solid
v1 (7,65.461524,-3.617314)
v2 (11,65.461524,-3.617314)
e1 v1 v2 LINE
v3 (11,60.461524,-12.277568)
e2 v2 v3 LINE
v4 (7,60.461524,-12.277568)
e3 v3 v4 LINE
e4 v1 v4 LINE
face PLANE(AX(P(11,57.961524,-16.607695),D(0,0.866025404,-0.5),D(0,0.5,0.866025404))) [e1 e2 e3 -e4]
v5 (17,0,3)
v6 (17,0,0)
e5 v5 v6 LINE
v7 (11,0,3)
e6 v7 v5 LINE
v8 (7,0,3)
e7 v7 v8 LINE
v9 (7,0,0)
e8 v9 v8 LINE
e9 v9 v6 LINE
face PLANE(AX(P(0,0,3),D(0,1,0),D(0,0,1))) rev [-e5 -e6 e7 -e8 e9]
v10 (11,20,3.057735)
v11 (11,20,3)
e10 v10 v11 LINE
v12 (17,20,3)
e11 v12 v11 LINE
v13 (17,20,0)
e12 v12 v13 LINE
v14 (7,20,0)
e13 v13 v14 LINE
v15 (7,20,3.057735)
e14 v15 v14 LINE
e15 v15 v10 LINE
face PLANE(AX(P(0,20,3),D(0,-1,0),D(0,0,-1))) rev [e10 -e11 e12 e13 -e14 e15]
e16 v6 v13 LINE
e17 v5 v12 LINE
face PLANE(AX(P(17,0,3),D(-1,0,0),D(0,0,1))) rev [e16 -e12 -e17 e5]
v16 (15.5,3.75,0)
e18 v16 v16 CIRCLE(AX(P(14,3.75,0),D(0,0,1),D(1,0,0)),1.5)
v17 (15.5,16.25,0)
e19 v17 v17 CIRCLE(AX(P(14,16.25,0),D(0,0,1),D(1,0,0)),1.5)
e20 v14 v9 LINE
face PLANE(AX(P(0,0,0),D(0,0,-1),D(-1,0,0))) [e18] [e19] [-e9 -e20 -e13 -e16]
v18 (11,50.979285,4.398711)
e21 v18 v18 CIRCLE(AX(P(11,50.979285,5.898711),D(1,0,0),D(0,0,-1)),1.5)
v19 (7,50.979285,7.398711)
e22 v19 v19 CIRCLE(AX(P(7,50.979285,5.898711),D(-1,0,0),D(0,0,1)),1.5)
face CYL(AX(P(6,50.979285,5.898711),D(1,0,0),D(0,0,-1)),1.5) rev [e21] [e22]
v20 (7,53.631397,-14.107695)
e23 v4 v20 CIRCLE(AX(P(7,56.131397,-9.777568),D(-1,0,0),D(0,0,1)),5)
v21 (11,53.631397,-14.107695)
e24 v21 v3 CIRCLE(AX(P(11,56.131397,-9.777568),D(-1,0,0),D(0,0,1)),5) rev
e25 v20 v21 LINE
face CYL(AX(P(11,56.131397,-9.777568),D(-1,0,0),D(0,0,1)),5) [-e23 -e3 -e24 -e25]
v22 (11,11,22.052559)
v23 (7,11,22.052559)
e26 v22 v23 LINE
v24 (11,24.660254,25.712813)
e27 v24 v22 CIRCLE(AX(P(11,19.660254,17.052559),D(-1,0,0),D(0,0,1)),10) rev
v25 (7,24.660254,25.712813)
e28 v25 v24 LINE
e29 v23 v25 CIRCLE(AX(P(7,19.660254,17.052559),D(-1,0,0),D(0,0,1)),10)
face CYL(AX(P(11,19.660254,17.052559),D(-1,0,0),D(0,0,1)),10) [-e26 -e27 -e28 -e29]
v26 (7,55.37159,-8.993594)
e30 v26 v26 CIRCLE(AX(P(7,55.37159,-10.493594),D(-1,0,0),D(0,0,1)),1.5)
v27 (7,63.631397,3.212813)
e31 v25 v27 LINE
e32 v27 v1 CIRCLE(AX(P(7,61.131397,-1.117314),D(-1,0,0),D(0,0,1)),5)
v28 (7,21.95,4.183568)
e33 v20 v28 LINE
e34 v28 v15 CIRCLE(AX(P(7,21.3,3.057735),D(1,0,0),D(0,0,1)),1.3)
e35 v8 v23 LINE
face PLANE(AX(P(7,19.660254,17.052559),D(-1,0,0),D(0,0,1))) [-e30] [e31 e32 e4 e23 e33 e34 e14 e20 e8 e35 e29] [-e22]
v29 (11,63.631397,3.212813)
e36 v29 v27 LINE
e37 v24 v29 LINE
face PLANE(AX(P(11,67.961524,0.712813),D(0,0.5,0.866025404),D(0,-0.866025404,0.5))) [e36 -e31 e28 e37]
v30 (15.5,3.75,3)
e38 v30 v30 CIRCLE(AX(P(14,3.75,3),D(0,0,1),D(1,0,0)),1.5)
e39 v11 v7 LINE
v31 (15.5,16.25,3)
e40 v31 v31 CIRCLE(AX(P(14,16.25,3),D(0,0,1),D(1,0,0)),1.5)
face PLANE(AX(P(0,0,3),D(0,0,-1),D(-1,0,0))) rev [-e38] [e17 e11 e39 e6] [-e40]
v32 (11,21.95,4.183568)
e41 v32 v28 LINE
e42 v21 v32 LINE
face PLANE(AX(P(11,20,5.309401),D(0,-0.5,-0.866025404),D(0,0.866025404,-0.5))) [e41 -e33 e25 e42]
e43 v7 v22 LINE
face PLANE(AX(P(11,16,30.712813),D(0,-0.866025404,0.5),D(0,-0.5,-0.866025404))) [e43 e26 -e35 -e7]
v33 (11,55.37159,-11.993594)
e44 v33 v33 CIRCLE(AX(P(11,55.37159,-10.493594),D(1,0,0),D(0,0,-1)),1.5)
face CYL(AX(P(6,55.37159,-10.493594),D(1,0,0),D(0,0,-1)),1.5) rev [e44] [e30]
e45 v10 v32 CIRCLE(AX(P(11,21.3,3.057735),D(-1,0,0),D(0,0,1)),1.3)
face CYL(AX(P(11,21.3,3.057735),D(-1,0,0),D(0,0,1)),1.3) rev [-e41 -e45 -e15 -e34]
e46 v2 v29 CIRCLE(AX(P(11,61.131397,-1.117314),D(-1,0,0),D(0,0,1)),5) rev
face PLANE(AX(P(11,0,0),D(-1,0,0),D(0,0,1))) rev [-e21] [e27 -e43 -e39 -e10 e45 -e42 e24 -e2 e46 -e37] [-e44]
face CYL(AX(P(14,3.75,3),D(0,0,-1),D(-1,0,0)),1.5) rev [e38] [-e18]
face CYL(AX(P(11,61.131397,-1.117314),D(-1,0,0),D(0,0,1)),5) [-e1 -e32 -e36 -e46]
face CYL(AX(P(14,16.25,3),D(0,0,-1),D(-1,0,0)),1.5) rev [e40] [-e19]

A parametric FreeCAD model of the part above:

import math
import FreeCAD as App
import Part
import Sketcher
Q = App.Units.Quantity


def edges_at(feature, points):
    """Names of the edges that pass closest to the given points."""
    edges = feature.Shape.Edges
    near = lambda p: min(range(len(edges)), key=lambda i: edges[i].distToShape(Part.Vertex(*p))[0])
    return sorted({f"Edge{near(p) + 1}" for p in points})

doc = App.newDocument("Part")
body = doc.addObject("PartDesign::Body", "Body")

# Sketch on XY plane
sketch1 = doc.addObject("Sketcher::SketchObject", "Sketch")
body.addObject(sketch1)
sketch1.AttachmentSupport = (doc.XY_Plane, [""])
sketch1.MapMode = "FlatFace"
sketch1.addGeometry(Part.LineSegment(App.Vector(0, 20, 0), App.Vector(0, 0, 0)), False)
sketch1.addGeometry(Part.LineSegment(App.Vector(0, 0, 0), App.Vector(17, 0, 0)), False)
sketch1.addGeometry(Part.LineSegment(App.Vector(17, 0, 0), App.Vector(17, 20, 0)), False)
sketch1.addGeometry(Part.LineSegment(App.Vector(17, 20, 0), App.Vector(0, 20, 0)), False)
sketch1.addGeometry(Part.Circle(App.Vector(3, 3.8, 0), App.Vector(0, 0, 1), 1.5), False)
sketch1.addGeometry(Part.Circle(App.Vector(14, 3.8, 0), App.Vector(0, 0, 1), 1.5), False)
sketch1.addGeometry(Part.Circle(App.Vector(3, 16.2, 0), App.Vector(0, 0, 1), 1.5), False)
sketch1.addGeometry(Part.Circle(App.Vector(14, 16.2, 0), App.Vector(0, 0, 1), 1.5), False)
sketch1.addConstraint(Sketcher.Constraint("Coincident", 0, 2, 1, 1))
sketch1.addConstraint(Sketcher.Constraint("Coincident", 1, 2, 2, 1))
sketch1.addConstraint(Sketcher.Constraint("Coincident", 2, 2, 3, 1))
sketch1.addConstraint(Sketcher.Constraint("Coincident", 3, 2, 0, 1))
sketch1.addConstraint(Sketcher.Constraint("Vertical", 0))
sketch1.addConstraint(Sketcher.Constraint("Horizontal", 1))
sketch1.addConstraint(Sketcher.Constraint("Vertical", 2))
sketch1.addConstraint(Sketcher.Constraint("Horizontal", 3))
sketch1.addConstraint(Sketcher.Constraint("Coincident", 0, 2, -1, 1))
sketch1.addConstraint(Sketcher.Constraint("Equal", 4, 5))
sketch1.addConstraint(Sketcher.Constraint("Equal", 5, 6))
sketch1.addConstraint(Sketcher.Constraint("Equal", 6, 7))
sketch1.addConstraint(Sketcher.Constraint("Horizontal", 4, 3, 5, 3))
sketch1.addConstraint(Sketcher.Constraint("Horizontal", 6, 3, 7, 3))
sketch1.addConstraint(Sketcher.Constraint("Vertical", 4, 3, 6, 3))
sketch1.addConstraint(Sketcher.Constraint("Vertical", 5, 3, 7, 3))
sketch1.addConstraint(Sketcher.Constraint("Diameter", 4, Q("3 mm")))
sketch1.addConstraint(Sketcher.Constraint("DistanceX", 1, 1, 1, 2, Q("17 mm")))
sketch1.addConstraint(Sketcher.Constraint("DistanceY", 0, 2, 0, 1, Q("20 mm")))
sketch1.addConstraint(Sketcher.Constraint("DistanceX", -1, 1, 4, 3, Q("3 mm")))
sketch1.addConstraint(Sketcher.Constraint("DistanceX", -1, 1, 5, 3, Q("14 mm")))
sketch1.addConstraint(Sketcher.Constraint("DistanceY", 4, 3, 6, 3, Q("12.5 mm")))
sketch1.addConstraint(Sketcher.Constraint("DistanceY", -1, 1, 4, 3, Q("3.75 mm")))
pad1 = doc.addObject("PartDesign::Pad", "Pad")
body.addObject(pad1)
pad1.Profile = sketch1
pad1.Length = 3

# Sketch on YZ plane
sketch2 = doc.addObject("Sketcher::SketchObject", "Sketch001")
body.addObject(sketch2)
sketch2.AttachmentSupport = (doc.YZ_Plane, [""])
sketch2.MapMode = "FlatFace"
sketch2.AttachmentOffset = App.Placement(App.Vector(0, 0, 6), App.Rotation())
sketch2.addGeometry(Part.LineSegment(App.Vector(20, 5.3, 0), App.Vector(20, 3, 0)), False)
sketch2.addGeometry(Part.LineSegment(App.Vector(20, 3, 0), App.Vector(0, 3, 0)), False)
sketch2.addGeometry(Part.LineSegment(App.Vector(0, 3, 0), App.Vector(16, 30.7, 0)), False)
sketch2.addGeometry(Part.LineSegment(App.Vector(16, 30.7, 0), App.Vector(68, 0.7, 0)), False)
sketch2.addGeometry(Part.LineSegment(App.Vector(68, 0.7, 0), App.Vector(58, -16.6, 0)), False)
sketch2.addGeometry(Part.LineSegment(App.Vector(58, -16.6, 0), App.Vector(20, 5.3, 0)), False)
sketch2.addConstraint(Sketcher.Constraint("Coincident", 0, 2, 1, 1))
sketch2.addConstraint(Sketcher.Constraint("Coincident", 1, 2, 2, 1))
sketch2.addConstraint(Sketcher.Constraint("Coincident", 2, 2, 3, 1))
sketch2.addConstraint(Sketcher.Constraint("Coincident", 3, 2, 4, 1))
sketch2.addConstraint(Sketcher.Constraint("Coincident", 4, 2, 5, 1))
sketch2.addConstraint(Sketcher.Constraint("Coincident", 5, 2, 0, 1))
sketch2.addConstraint(Sketcher.Constraint("Vertical", 0))
sketch2.addConstraint(Sketcher.Constraint("Horizontal", 1))
sketch2.addConstraint(Sketcher.Constraint("PointOnObject", 1, 2, -2))
sketch2.addConstraint(Sketcher.Constraint("Perpendicular", 2, 3))
sketch2.addConstraint(Sketcher.Constraint("Perpendicular", 3, 4))
sketch2.addConstraint(Sketcher.Constraint("Perpendicular", 4, 5))
sketch2.addConstraint(Sketcher.Constraint("DistanceX", 1, 2, 1, 1, Q("20 mm")))
sketch2.addConstraint(Sketcher.Constraint("Angle", 2, Q("60 deg")))
sketch2.addConstraint(Sketcher.Constraint("Distance", 2, Q("32 mm")))
sketch2.addConstraint(Sketcher.Constraint("Distance", 3, Q("60 mm")))
sketch2.addConstraint(Sketcher.Constraint("Distance", 4, Q("20 mm")))
sketch2.addConstraint(Sketcher.Constraint("DistanceY", -1, 1, 0, 2, Q("3 mm")))
pad2 = doc.addObject("PartDesign::Pad", "Pad001")
body.addObject(pad2)
pad2.Profile = sketch2
pad2.Length = 5

# Sketch on YZ plane
sketch3 = doc.addObject("Sketcher::SketchObject", "Sketch002")
body.addObject(sketch3)
sketch3.AttachmentSupport = (doc.YZ_Plane, [""])
sketch3.MapMode = "FlatFace"
sketch3.AttachmentOffset = App.Placement(App.Vector(0, 0, 11), App.Rotation())
sketch3.addGeometry(Part.Circle(App.Vector(51, 5.9, 0), App.Vector(0, 0, 1), 1.5), False)
sketch3.addGeometry(Part.Circle(App.Vector(55.4, -10.5, 0), App.Vector(0, 0, 1), 1.5), False)
sketch3.addConstraint(Sketcher.Constraint("Equal", 0, 1))
sketch3.addConstraint(Sketcher.Constraint("Diameter", 0, Q("3 mm")))
sketch3.addConstraint(Sketcher.Constraint("DistanceY", -1, 1, 0, 3, Q("5.898711 mm")))
sketch3.addConstraint(Sketcher.Constraint("DistanceX", -1, 1, 1, 3, Q("55.37159 mm")))
sketch3.addConstraint(Sketcher.Constraint("DistanceX", -1, 1, 0, 3, Q("50.979285 mm")))
sketch3.addConstraint(Sketcher.Constraint("DistanceY", 1, 3, -1, 1, Q("10.493594 mm")))
pocket1 = doc.addObject("PartDesign::Pocket", "Pocket")
body.addObject(pocket1)
pocket1.Profile = sketch3
pocket1.Length = 5
doc.recompute()

fillet = doc.addObject("PartDesign::Fillet", "Fillet")
body.addObject(fillet)
fillet.Base = (pocket1, edges_at(pocket1, [(8.5, 57.962, -16.608), (8.5, 67.962, 0.713)]))
fillet.Radius = 5
doc.recompute()

fillet2 = doc.addObject("PartDesign::Fillet", "Fillet001")
body.addObject(fillet2)
fillet2.Base = (fillet, edges_at(fillet, [(8.5, 20, 5.309)]))
fillet2.Radius = 1.3
doc.recompute()

fillet3 = doc.addObject("PartDesign::Fillet", "Fillet002")
body.addObject(fillet3)
fillet3.Base = (fillet2, edges_at(fillet2, [(8.5, 16, 30.713)]))
fillet3.Radius = 10

# Sketch on XY plane
sketch4 = doc.addObject("Sketcher::SketchObject", "Sketch003")
body.addObject(sketch4)
sketch4.AttachmentSupport = (doc.XY_Plane, [""])
sketch4.MapMode = "FlatFace"
sketch4.AttachmentOffset = App.Placement(App.Vector(0, 0, 3), App.Rotation())
sketch4.addGeometry(Part.LineSegment(App.Vector(0, 20, 0), App.Vector(0, 0, 0)), False)
sketch4.addGeometry(Part.LineSegment(App.Vector(0, 0, 0), App.Vector(6, 0, 0)), False)
sketch4.addGeometry(Part.LineSegment(App.Vector(6, 0, 0), App.Vector(6, 20, 0)), False)
sketch4.addGeometry(Part.LineSegment(App.Vector(6, 20, 0), App.Vector(0, 20, 0)), False)
sketch4.addConstraint(Sketcher.Constraint("Coincident", 0, 2, 1, 1))
sketch4.addConstraint(Sketcher.Constraint("Coincident", 1, 2, 2, 1))
sketch4.addConstraint(Sketcher.Constraint("Coincident", 2, 2, 3, 1))
sketch4.addConstraint(Sketcher.Constraint("Coincident", 3, 2, 0, 1))
sketch4.addConstraint(Sketcher.Constraint("Vertical", 0))
sketch4.addConstraint(Sketcher.Constraint("Horizontal", 1))
sketch4.addConstraint(Sketcher.Constraint("Vertical", 2))
sketch4.addConstraint(Sketcher.Constraint("Horizontal", 3))
sketch4.addConstraint(Sketcher.Constraint("Coincident", 0, 2, -1, 1))
sketch4.addConstraint(Sketcher.Constraint("DistanceX", 1, 1, 1, 2, Q("6 mm")))
sketch4.addConstraint(Sketcher.Constraint("DistanceY", 0, 2, 0, 1, Q("20 mm")))
pocket2 = doc.addObject("PartDesign::Pocket", "Pocket001")
body.addObject(pocket2)
pocket2.Profile = sketch4
pocket2.Length = 10

# Sketch on YZ plane
sketch5 = doc.addObject("Sketcher::SketchObject", "Sketch004")
body.addObject(sketch5)
sketch5.AttachmentSupport = (doc.YZ_Plane, [""])
sketch5.MapMode = "FlatFace"
sketch5.AttachmentOffset = App.Placement(App.Vector(0, 0, 6), App.Rotation())
sketch5.addGeometry(Part.LineSegment(App.Vector(0, 3, 0), App.Vector(11, 22.1, 0)), False)
sketch5.addGeometry(Part.ArcOfCircle(Part.Circle(App.Vector(19.7, 17.1, 0), App.Vector(0, 0, 1), 10), math.radians(60), math.radians(150)), False)
sketch5.addGeometry(Part.LineSegment(App.Vector(24.7, 25.7, 0), App.Vector(63.6, 3.2, 0)), False)
sketch5.addGeometry(Part.ArcOfCircle(Part.Circle(App.Vector(61.1, -1.1, 0), App.Vector(0, 0, 1), 5), math.radians(-30), math.radians(60)), False)
sketch5.addGeometry(Part.LineSegment(App.Vector(65.5, -3.6, 0), App.Vector(60.5, -12.3, 0)), False)
sketch5.addGeometry(Part.ArcOfCircle(Part.Circle(App.Vector(56.1, -9.8, 0), App.Vector(0, 0, 1), 5), math.radians(-120), math.radians(-30)), False)
sketch5.addGeometry(Part.LineSegment(App.Vector(53.6, -14.1, 0), App.Vector(21.9, 4.2, 0)), False)
sketch5.addGeometry(Part.ArcOfCircle(Part.Circle(App.Vector(21.3, 3.1, 0), App.Vector(0, 0, 1), 1.3), math.radians(60), math.radians(180)), False)
sketch5.addGeometry(Part.LineSegment(App.Vector(20, 3.1, 0), App.Vector(20, 0, 0)), False)
sketch5.addGeometry(Part.LineSegment(App.Vector(20, 0, 0), App.Vector(0, 0, 0)), False)
sketch5.addGeometry(Part.LineSegment(App.Vector(0, 0, 0), App.Vector(0, 3, 0)), False)
sketch5.addGeometry(Part.Circle(App.Vector(51, 5.9, 0), App.Vector(0, 0, 1), 1.5), False)
sketch5.addGeometry(Part.Circle(App.Vector(55.4, -10.5, 0), App.Vector(0, 0, 1), 1.5), False)
sketch5.addConstraint(Sketcher.Constraint("Tangent", 0, 2, 1, 2))
sketch5.addConstraint(Sketcher.Constraint("Tangent", 1, 1, 2, 1))
sketch5.addConstraint(Sketcher.Constraint("Tangent", 2, 2, 3, 2))
sketch5.addConstraint(Sketcher.Constraint("Tangent", 3, 1, 4, 1))
sketch5.addConstraint(Sketcher.Constraint("Tangent", 4, 2, 5, 2))
sketch5.addConstraint(Sketcher.Constraint("Tangent", 5, 1, 6, 1))
sketch5.addConstraint(Sketcher.Constraint("Tangent", 6, 2, 7, 1))
sketch5.addConstraint(Sketcher.Constraint("Tangent", 7, 2, 8, 1))
sketch5.addConstraint(Sketcher.Constraint("Coincident", 8, 2, 9, 1))
sketch5.addConstraint(Sketcher.Constraint("Coincident", 9, 2, 10, 1))
sketch5.addConstraint(Sketcher.Constraint("Coincident", 10, 2, 0, 1))
sketch5.addConstraint(Sketcher.Constraint("Vertical", 8))
sketch5.addConstraint(Sketcher.Constraint("Horizontal", 9))
sketch5.addConstraint(Sketcher.Constraint("Vertical", 10))
sketch5.addConstraint(Sketcher.Constraint("Coincident", 9, 2, -1, 1))
sketch5.addConstraint(Sketcher.Constraint("Equal", 3, 5))
sketch5.addConstraint(Sketcher.Constraint("Equal", 11, 12))
sketch5.addConstraint(Sketcher.Constraint("Perpendicular", 0, 2))
sketch5.addConstraint(Sketcher.Constraint("Perpendicular", 2, 4))
sketch5.addConstraint(Sketcher.Constraint("Perpendicular", 4, 6))
sketch5.addConstraint(Sketcher.Constraint("Diameter", 11, Q("3 mm")))
sketch5.addConstraint(Sketcher.Constraint("Radius", 1, Q("10 mm")))
sketch5.addConstraint(Sketcher.Constraint("Radius", 3, Q("5 mm")))
sketch5.addConstraint(Sketcher.Constraint("Radius", 7, Q("1.3 mm")))
sketch5.addConstraint(Sketcher.Constraint("DistanceX", 9, 2, 9, 1, Q("20 mm")))
sketch5.addConstraint(Sketcher.Constraint("DistanceY", 10, 1, 10, 2, Q("3 mm")))
sketch5.addConstraint(Sketcher.Constraint("Angle", 0, Q("60 deg")))
sketch5.addConstraint(Sketcher.Constraint("Distance", 0, Q("22 mm")))
sketch5.addConstraint(Sketcher.Constraint("Distance", 2, Q("45 mm")))
sketch5.addConstraint(Sketcher.Constraint("Distance", 4, Q("10 mm")))
sketch5.addConstraint(Sketcher.Constraint("DistanceY", 11, 3, 1, 1, Q("19.814102 mm")))
sketch5.addConstraint(Sketcher.Constraint("DistanceY", 5, 1, 12, 3, Q("3.614102 mm")))
sketch5.addConstraint(Sketcher.Constraint("DistanceX", -1, 1, 12, 3, Q("55.37159 mm")))
sketch5.addConstraint(Sketcher.Constraint("DistanceX", 1, 3, 11, 3, Q("31.319031 mm")))
pocket3 = doc.addObject("PartDesign::Pocket", "Pocket002")
body.addObject(pocket3)
pocket3.Profile = sketch5
pocket3.Length = 1
pocket3.Reversed = True

doc.recompute()
